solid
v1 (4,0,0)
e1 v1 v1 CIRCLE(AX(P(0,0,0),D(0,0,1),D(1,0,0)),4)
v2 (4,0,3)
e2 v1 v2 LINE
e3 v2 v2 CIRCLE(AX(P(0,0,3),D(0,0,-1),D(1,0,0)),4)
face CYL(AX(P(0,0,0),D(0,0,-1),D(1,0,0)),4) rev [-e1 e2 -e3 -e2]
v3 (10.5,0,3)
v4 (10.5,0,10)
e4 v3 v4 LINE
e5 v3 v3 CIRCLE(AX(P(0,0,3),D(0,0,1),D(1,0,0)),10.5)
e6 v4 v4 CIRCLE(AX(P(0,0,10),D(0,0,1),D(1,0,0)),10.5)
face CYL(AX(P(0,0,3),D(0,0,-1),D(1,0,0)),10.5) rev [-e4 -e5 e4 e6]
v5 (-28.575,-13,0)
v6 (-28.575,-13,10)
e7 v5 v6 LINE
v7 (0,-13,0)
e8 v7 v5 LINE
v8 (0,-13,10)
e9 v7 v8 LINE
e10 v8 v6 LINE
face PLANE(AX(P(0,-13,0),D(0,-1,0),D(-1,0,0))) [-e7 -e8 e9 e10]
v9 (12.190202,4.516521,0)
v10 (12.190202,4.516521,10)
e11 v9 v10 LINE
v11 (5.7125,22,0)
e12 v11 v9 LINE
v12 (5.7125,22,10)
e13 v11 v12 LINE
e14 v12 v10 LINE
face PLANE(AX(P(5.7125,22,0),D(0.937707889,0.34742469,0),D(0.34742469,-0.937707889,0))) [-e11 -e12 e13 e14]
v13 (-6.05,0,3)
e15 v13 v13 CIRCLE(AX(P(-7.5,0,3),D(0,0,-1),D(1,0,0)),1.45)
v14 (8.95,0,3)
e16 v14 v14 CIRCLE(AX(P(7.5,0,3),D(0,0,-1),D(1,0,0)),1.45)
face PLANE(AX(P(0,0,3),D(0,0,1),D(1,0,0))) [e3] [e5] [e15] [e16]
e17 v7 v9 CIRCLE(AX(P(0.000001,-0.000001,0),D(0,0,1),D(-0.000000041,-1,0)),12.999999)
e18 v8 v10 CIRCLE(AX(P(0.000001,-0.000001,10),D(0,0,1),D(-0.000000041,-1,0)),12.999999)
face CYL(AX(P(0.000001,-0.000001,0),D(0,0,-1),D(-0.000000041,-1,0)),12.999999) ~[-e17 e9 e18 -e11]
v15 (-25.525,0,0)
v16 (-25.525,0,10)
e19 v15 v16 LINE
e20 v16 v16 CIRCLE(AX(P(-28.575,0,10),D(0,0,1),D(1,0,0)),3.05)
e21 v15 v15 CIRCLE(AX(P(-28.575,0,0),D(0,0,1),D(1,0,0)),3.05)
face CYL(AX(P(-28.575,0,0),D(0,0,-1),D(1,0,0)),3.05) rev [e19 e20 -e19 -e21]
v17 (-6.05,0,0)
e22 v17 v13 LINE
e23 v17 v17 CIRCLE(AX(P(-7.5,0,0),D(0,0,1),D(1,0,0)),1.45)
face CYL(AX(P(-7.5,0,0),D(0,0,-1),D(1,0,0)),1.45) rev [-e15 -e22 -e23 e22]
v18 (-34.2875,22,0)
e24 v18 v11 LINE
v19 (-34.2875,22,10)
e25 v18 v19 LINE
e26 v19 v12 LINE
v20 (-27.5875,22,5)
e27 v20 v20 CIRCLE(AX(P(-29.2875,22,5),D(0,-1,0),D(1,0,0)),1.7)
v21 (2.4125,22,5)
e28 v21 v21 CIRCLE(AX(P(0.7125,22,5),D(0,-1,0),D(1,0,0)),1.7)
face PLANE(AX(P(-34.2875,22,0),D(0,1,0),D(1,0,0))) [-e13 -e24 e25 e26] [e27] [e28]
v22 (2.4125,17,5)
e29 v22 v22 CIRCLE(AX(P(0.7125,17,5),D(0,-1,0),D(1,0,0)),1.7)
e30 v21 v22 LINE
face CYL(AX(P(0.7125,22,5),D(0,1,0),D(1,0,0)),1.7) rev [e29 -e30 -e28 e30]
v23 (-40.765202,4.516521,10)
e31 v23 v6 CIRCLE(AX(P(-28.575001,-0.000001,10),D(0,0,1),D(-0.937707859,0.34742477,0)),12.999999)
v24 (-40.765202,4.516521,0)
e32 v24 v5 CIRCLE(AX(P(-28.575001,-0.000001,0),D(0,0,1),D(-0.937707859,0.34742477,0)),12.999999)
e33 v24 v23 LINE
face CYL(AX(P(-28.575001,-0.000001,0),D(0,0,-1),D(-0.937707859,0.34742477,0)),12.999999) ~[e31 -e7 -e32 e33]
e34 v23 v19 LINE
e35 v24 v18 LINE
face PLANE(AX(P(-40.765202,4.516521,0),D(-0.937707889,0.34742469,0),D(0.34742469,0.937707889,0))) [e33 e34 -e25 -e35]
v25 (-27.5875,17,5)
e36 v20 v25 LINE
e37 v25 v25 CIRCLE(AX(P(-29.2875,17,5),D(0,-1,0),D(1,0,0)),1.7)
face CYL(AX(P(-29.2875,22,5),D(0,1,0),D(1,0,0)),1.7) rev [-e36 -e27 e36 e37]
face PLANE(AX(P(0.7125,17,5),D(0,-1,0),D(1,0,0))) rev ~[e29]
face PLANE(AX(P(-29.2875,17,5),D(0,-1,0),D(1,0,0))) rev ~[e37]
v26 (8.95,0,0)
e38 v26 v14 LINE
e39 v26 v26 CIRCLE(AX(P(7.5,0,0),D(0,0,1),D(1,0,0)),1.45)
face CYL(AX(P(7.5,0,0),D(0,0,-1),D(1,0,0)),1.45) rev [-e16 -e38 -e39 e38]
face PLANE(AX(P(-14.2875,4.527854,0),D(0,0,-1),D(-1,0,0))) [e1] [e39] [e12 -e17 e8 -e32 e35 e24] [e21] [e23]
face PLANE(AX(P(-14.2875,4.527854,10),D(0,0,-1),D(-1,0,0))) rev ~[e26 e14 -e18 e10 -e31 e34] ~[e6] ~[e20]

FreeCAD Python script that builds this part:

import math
import FreeCAD as App
import Part
import Sketcher
from FreeCAD import Vector

doc = App.newDocument("Part")
body = doc.addObject("PartDesign::Body", "Body")

# Sketch on XY plane
sketch1 = doc.addObject("Sketcher::SketchObject", "Sketch")
body.addObject(sketch1)
sketch1.AttachmentSupport = (doc.XY_Plane, [""])
sketch1.MapMode = "FlatFace"
sketch1.addGeometry([
    Part.LineSegment(Vector(5.7, 22, 0), Vector(-34.3, 22, 0)),  # 0
    Part.LineSegment(Vector(-34.3, 22, 0), Vector(-40.8, 4.5, 0)),  # 1
    Part.ArcOfCircle(Part.Circle(Vector(-28.6, 0, 0), Vector(0, 0, 1), 13), math.radians(160), math.radians(270)),  # 2
    Part.LineSegment(Vector(-28.6, -13, 0), Vector(0, -13, 0)),  # 3
    Part.ArcOfCircle(Part.Circle(Vector(0, 0, 0), Vector(0, 0, 1), 13), math.radians(-90), math.radians(20)),  # 4
    Part.LineSegment(Vector(12.2, 4.5, 0), Vector(5.7, 22, 0)),  # 5
    Part.Circle(Vector(7.5, 0, 0), Vector(0, 0, 1), 1.4),  # 6
    Part.Circle(Vector(0, 0, 0), Vector(0, 0, 1), 4),  # 7
    Part.Circle(Vector(-7.5, 0, 0), Vector(0, 0, 1), 1.4),  # 8
    Part.Circle(Vector(-28.6, 0, 0), Vector(0, 0, 1), 3),  # 9
], False)
sketch1.addConstraint([
    Sketcher.Constraint("Coincident", 0, 2, 1, 1),
    Sketcher.Constraint("Tangent", 1, 2, 2, 1),
    Sketcher.Constraint("Tangent", 2, 2, 3, 1),
    Sketcher.Constraint("Tangent", 3, 2, 4, 1),
    Sketcher.Constraint("Tangent", 4, 2, 5, 1),
    Sketcher.Constraint("Coincident", 5, 2, 0, 1),
    Sketcher.Constraint("Horizontal", 0),
    Sketcher.Constraint("Horizontal", 3),
    Sketcher.Constraint("Coincident", 4, 3, -1, 1),
    Sketcher.Constraint("Coincident", 7, 3, -1, 1),
    Sketcher.Constraint("Coincident", 9, 3, 2, 3),
    Sketcher.Constraint("Equal", 2, 4),
    Sketcher.Constraint("Equal", 6, 8),
    Sketcher.Constraint("Symmetric", 6, 3, 8, 3, -1, 1),
    Sketcher.Constraint("PointOnObject", 6, 3, -1),
    Sketcher.Constraint("Horizontal", 1, 2, 4, 2),
    Sketcher.Constraint("Diameter", 7, 8.0),
    Sketcher.Constraint("Radius", 2, 12.999999),
    Sketcher.Constraint("Diameter", 6, 2.9),
    Sketcher.Constraint("Diameter", 9, 6.1),
    Sketcher.Constraint("DistanceX", 0, 2, 0, 1, 40.0),
    Sketcher.Constraint("DistanceY", -1, 1, 0, 2, 22.0),
    Sketcher.Constraint("DistanceX", 8, 3, 6, 3, 15.0),
    Sketcher.Constraint("DistanceX", 3, 1, 3, 2, 28.575),
])
pad1 = doc.addObject("PartDesign::Pad", "Pad")
body.addObject(pad1)
pad1.Profile = sketch1
pad1.Length = 10

# Sketch on XY plane
sketch2 = doc.addObject("Sketcher::SketchObject", "Sketch001")
body.addObject(sketch2)
sketch2.AttachmentSupport = (doc.XY_Plane, [""])
sketch2.MapMode = "FlatFace"
sketch2.AttachmentOffset = App.Placement(Vector(0, 0, 3), App.Rotation())
sketch2.addGeometry(Part.Circle(Vector(0, 0, 0), Vector(0, 0, 1), 10), False)
sketch2.addConstraint([
    Sketcher.Constraint("Coincident", 0, 3, -1, 1),
    Sketcher.Constraint("Diameter", 0, 21.0),
])
pocket1 = doc.addObject("PartDesign::Pocket", "Pocket")
body.addObject(pocket1)
pocket1.Profile = sketch2
pocket1.Length = 7
pocket1.Reversed = True

# Sketch on XZ plane
sketch3 = doc.addObject("Sketcher::SketchObject", "Sketch002")
body.addObject(sketch3)
sketch3.AttachmentSupport = (doc.XZ_Plane, [""])
sketch3.MapMode = "FlatFace"
sketch3.AttachmentOffset = App.Placement(Vector(0, 0, -22), App.Rotation())
sketch3.addGeometry([
    Part.Circle(Vector(-29.3, 5, 0), Vector(0, 0, 1), 1.7),
    Part.Circle(Vector(0.7, 5, 0), Vector(0, 0, 1), 1.7),
], False)
sketch3.addConstraint([
    Sketcher.Constraint("Equal", 0, 1),
    Sketcher.Constraint("Horizontal", 0, 3, 1, 3),
    Sketcher.Constraint("Diameter", 0, 3.4),
    Sketcher.Constraint("DistanceY", -1, 1, 0, 3, 5.0),
    Sketcher.Constraint("DistanceX", 0, 3, 1, 3, 30.0),
    Sketcher.Constraint("DistanceX", 0, 3, -1, 1, 29.2875),
])
pocket2 = doc.addObject("PartDesign::Pocket", "Pocket001")
body.addObject(pocket2)
pocket2.Profile = sketch3
pocket2.Length = 5
pocket2.Reversed = True

doc.recompute()
